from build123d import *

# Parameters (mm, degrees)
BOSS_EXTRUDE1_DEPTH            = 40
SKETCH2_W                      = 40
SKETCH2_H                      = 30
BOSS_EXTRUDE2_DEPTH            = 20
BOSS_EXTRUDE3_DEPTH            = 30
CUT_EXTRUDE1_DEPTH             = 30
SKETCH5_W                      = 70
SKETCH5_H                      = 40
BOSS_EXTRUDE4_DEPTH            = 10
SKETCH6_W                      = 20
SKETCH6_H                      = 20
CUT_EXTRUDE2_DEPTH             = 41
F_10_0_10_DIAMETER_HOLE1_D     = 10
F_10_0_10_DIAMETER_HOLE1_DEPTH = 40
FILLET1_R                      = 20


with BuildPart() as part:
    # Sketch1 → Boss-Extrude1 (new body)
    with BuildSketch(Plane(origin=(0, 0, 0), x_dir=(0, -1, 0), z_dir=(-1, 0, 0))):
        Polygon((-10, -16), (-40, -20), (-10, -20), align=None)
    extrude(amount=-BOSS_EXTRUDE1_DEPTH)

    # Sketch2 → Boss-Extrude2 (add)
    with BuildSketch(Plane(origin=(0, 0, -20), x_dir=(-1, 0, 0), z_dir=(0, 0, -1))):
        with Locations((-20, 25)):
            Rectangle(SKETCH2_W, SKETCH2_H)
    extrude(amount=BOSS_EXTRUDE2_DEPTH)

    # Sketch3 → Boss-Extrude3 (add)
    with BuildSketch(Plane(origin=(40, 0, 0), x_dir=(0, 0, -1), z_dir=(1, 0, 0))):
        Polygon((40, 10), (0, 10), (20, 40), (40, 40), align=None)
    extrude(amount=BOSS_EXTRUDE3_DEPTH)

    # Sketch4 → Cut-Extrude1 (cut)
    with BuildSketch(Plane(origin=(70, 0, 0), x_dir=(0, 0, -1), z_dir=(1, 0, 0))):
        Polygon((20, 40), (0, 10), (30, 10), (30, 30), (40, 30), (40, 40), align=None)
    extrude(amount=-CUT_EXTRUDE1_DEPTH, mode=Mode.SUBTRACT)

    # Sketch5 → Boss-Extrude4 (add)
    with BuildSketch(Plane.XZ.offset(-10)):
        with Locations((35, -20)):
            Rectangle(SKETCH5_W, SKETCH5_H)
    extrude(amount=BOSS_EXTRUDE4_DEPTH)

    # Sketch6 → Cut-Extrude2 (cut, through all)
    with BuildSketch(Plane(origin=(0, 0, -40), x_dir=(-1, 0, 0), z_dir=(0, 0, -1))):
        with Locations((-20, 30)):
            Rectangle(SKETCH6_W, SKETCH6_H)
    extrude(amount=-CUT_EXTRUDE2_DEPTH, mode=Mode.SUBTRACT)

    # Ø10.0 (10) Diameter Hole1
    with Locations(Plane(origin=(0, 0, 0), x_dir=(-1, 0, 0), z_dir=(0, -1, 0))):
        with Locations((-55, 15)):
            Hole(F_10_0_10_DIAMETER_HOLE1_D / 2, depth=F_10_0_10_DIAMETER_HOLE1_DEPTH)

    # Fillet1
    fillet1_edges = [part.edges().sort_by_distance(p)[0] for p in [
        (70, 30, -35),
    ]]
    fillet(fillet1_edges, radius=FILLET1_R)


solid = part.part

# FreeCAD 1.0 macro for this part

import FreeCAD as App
import Part
import Sketcher

V = App.Vector
Q = App.Units.Quantity


def edges_at(feature, points):
    """Names of the edges that pass closest to the given points."""
    edges = feature.Shape.Edges
    near = lambda p: min(range(len(edges)), key=lambda i: edges[i].distToShape(Part.Vertex(*p))[0])
    return sorted({f"Edge{near(p) + 1}" for p in points})


def add_polygon(sketch, points):
    """Adds a closed chain of lines whose ends are joined by coincident constraints."""
    first, n = sketch.GeometryCount, len(points)
    for a, b in zip(points, points[1:] + points[:1]):
        sketch.addGeometry(Part.LineSegment(App.Vector(*a, 0), App.Vector(*b, 0)), False)
    for i in range(n):
        sketch.addConstraint(Sketcher.Constraint("Coincident", first + i, 2, first + (i + 1) % n, 1))

doc = App.newDocument("Part")
body = doc.addObject("PartDesign::Body", "Body")

sketch1 = doc.addObject("Sketcher::SketchObject", "Sketch")
body.addObject(sketch1)
sketch1.AttachmentSupport = (doc.YZ_Plane, [""])
sketch1.MapMode = "FlatFace"
add_polygon(sketch1, [(10, -16), (40, -20), (10, -20)])
sketch1.addConstraint([
    Sketcher.Constraint("Horizontal", 1),
    Sketcher.Constraint("Vertical", 2),
    Sketcher.Constraint("DistanceX", 1, 2, 1, 1, Q("30 mm")),
    Sketcher.Constraint("DistanceY", 2, 1, 2, 2, Q("4 mm")),
    Sketcher.Constraint("DistanceX", -1, 1, 0, 2, Q("40 mm")),
    Sketcher.Constraint("DistanceY", 0, 2, -1, 1, Q("20 mm")),
])
pad1 = doc.addObject("PartDesign::Pad", "Pad")
body.addObject(pad1)
pad1.Profile = sketch1
pad1.Length = 40

sketch2 = doc.addObject("Sketcher::SketchObject", "Sketch001")
body.addObject(sketch2)
sketch2.AttachmentSupport = (doc.XY_Plane, [""])
sketch2.MapMode = "FlatFace"
sketch2.AttachmentOffset = App.Placement(V(0, 0, -20), App.Rotation())
add_polygon(sketch2, [(40, 40), (40, 10), (0, 10), (0, 40)])
sketch2.addConstraint([
    Sketcher.Constraint("Vertical", 0),
    Sketcher.Constraint("Horizontal", 1),
    Sketcher.Constraint("Vertical", 2),
    Sketcher.Constraint("Horizontal", 3),
    Sketcher.Constraint("PointOnObject", 1, 2, -2),
    Sketcher.Constraint("DistanceX", 1, 2, 1, 1, Q("40 mm")),
    Sketcher.Constraint("DistanceY", 0, 2, 0, 1, Q("30 mm")),
    Sketcher.Constraint("DistanceY", -1, 1, 0, 2, Q("10 mm")),
])
pad2 = doc.addObject("PartDesign::Pad", "Pad001")
body.addObject(pad2)
pad2.Profile = sketch2
pad2.Length = 20
pad2.Reversed = True

sketch3 = doc.addObject("Sketcher::SketchObject", "Sketch002")
body.addObject(sketch3)
sketch3.AttachmentSupport = (doc.YZ_Plane, [""])
sketch3.MapMode = "FlatFace"
sketch3.AttachmentOffset = App.Placement(V(0, 0, 40), App.Rotation())
add_polygon(sketch3, [(10, 0), (10, -40), (40, -40), (40, -20)])
sketch3.addConstraint([
    Sketcher.Constraint("Vertical", 0),
    Sketcher.Constraint("Horizontal", 1),
    Sketcher.Constraint("Vertical", 2),
    Sketcher.Constraint("PointOnObject", 3, 2, -1),
    Sketcher.Constraint("DistanceX", 1, 1, 1, 2, Q("30 mm")),
    Sketcher.Constraint("DistanceY", 0, 2, 0, 1, Q("40 mm")),
    Sketcher.Constraint("DistanceY", 2, 1, 2, 2, Q("20 mm")),
    Sketcher.Constraint("DistanceX", -1, 1, 0, 2, Q("10 mm")),
])
pad3 = doc.addObject("PartDesign::Pad", "Pad002")
body.addObject(pad3)
pad3.Profile = sketch3
pad3.Length = 30

sketch4 = doc.addObject("Sketcher::SketchObject", "Sketch003")
body.addObject(sketch4)
sketch4.AttachmentSupport = (doc.YZ_Plane, [""])
sketch4.MapMode = "FlatFace"
sketch4.AttachmentOffset = App.Placement(V(0, 0, 70), App.Rotation())
add_polygon(sketch4, [(40, -20), (10, 0), (10, -30), (30, -30), (30, -40), (40, -40)])
sketch4.addConstraint([
    Sketcher.Constraint("Vertical", 1),
    Sketcher.Constraint("Horizontal", 2),
    Sketcher.Constraint("Vertical", 3),
    Sketcher.Constraint("Horizontal", 4),
    Sketcher.Constraint("Vertical", 5),
    Sketcher.Constraint("PointOnObject", 0, 2, -1),
    Sketcher.Constraint("Equal", 4, 3),
    Sketcher.Constraint("Equal", 2, 5),
    Sketcher.Constraint("DistanceX", 2, 1, 2, 2, Q("20 mm")),
    Sketcher.Constraint("DistanceX", 4, 1, 4, 2, Q("10 mm")),
    Sketcher.Constraint("DistanceY", 1, 2, 1, 1, Q("30 mm")),
    Sketcher.Constraint("DistanceX", -1, 1, 0, 2, Q("10 mm")),
])
pocket1 = doc.addObject("PartDesign::Pocket", "Pocket")
body.addObject(pocket1)
pocket1.Profile = sketch4
pocket1.Length = 30

sketch5 = doc.addObject("Sketcher::SketchObject", "Sketch004")
body.addObject(sketch5)
sketch5.AttachmentSupport = (doc.XZ_Plane, [""])
sketch5.MapMode = "FlatFace"
sketch5.AttachmentOffset = App.Placement(V(0, 0, -10), App.Rotation())
add_polygon(sketch5, [(0, 0), (0, -40), (70, -40), (70, 0)])
sketch5.addConstraint([
    Sketcher.Constraint("Vertical", 0),
    Sketcher.Constraint("Horizontal", 1),
    Sketcher.Constraint("Vertical", 2),
    Sketcher.Constraint("Horizontal", 3),
    Sketcher.Constraint("Coincident", 3, 2, -1, 1),
    Sketcher.Constraint("DistanceX", 1, 1, 1, 2, Q("70 mm")),
    Sketcher.Constraint("DistanceY", 0, 2, 0, 1, Q("40 mm")),
])
pad4 = doc.addObject("PartDesign::Pad", "Pad003")
body.addObject(pad4)
pad4.Profile = sketch5
pad4.Length = 10

sketch6 = doc.addObject("Sketcher::SketchObject", "Sketch005")
body.addObject(sketch6)
sketch6.AttachmentSupport = (doc.XY_Plane, [""])
sketch6.MapMode = "FlatFace"
sketch6.AttachmentOffset = App.Placement(V(0, 0, -40), App.Rotation())
add_polygon(sketch6, [(30, 40), (30, 20), (10, 20), (10, 40)])
sketch6.addConstraint([
    Sketcher.Constraint("Vertical", 0),
    Sketcher.Constraint("Horizontal", 1),
    Sketcher.Constraint("Vertical", 2),
    Sketcher.Constraint("Horizontal", 3),
    Sketcher.Constraint("Equal", 3, 0),
    Sketcher.Constraint("DistanceX", 1, 2, 1, 1, Q("20 mm")),
    Sketcher.Constraint("DistanceX", -1, 1, 0, 2, Q("30 mm")),
    Sketcher.Constraint("DistanceY", -1, 1, 0, 2, Q("20 mm")),
])
pocket2 = doc.addObject("PartDesign::Pocket", "Pocket001")
body.addObject(pocket2)
pocket2.Profile = sketch6
pocket2.Type = "ThroughAll"
pocket2.Reversed = True

sketch7 = doc.addObject("Sketcher::SketchObject", "Sketch006")
body.addObject(sketch7)
sketch7.AttachmentSupport = (doc.XZ_Plane, [""])
sketch7.MapMode = "FlatFace"
sketch7.addGeometry(Part.Circle(V(55, -15, 0), V(0, 0, 1), 5), False)
sketch7.addConstraint([
    Sketcher.Constraint("Diameter", 0, Q("10 mm")),
    Sketcher.Constraint("DistanceX", -1, 1, 0, 3, Q("55 mm")),
    Sketcher.Constraint("DistanceY", 0, 3, -1, 1, Q("15 mm")),
])
doc.recompute()
hole = doc.addObject("PartDesign::Hole", "Hole")
body.addObject(hole)
hole.Profile = sketch7
hole.ThreadType = "None"
hole.Diameter = 10
hole.DepthType = "Dimension"
hole.Depth = 40
hole.DrillPoint = "Flat"
doc.recompute()

fillet = doc.addObject("PartDesign::Fillet", "Fillet")
body.addObject(fillet)
fillet.Base = (hole, edges_at(hole, [(70, 30, -35)]))
fillet.Radius = 20

doc.recompute()
